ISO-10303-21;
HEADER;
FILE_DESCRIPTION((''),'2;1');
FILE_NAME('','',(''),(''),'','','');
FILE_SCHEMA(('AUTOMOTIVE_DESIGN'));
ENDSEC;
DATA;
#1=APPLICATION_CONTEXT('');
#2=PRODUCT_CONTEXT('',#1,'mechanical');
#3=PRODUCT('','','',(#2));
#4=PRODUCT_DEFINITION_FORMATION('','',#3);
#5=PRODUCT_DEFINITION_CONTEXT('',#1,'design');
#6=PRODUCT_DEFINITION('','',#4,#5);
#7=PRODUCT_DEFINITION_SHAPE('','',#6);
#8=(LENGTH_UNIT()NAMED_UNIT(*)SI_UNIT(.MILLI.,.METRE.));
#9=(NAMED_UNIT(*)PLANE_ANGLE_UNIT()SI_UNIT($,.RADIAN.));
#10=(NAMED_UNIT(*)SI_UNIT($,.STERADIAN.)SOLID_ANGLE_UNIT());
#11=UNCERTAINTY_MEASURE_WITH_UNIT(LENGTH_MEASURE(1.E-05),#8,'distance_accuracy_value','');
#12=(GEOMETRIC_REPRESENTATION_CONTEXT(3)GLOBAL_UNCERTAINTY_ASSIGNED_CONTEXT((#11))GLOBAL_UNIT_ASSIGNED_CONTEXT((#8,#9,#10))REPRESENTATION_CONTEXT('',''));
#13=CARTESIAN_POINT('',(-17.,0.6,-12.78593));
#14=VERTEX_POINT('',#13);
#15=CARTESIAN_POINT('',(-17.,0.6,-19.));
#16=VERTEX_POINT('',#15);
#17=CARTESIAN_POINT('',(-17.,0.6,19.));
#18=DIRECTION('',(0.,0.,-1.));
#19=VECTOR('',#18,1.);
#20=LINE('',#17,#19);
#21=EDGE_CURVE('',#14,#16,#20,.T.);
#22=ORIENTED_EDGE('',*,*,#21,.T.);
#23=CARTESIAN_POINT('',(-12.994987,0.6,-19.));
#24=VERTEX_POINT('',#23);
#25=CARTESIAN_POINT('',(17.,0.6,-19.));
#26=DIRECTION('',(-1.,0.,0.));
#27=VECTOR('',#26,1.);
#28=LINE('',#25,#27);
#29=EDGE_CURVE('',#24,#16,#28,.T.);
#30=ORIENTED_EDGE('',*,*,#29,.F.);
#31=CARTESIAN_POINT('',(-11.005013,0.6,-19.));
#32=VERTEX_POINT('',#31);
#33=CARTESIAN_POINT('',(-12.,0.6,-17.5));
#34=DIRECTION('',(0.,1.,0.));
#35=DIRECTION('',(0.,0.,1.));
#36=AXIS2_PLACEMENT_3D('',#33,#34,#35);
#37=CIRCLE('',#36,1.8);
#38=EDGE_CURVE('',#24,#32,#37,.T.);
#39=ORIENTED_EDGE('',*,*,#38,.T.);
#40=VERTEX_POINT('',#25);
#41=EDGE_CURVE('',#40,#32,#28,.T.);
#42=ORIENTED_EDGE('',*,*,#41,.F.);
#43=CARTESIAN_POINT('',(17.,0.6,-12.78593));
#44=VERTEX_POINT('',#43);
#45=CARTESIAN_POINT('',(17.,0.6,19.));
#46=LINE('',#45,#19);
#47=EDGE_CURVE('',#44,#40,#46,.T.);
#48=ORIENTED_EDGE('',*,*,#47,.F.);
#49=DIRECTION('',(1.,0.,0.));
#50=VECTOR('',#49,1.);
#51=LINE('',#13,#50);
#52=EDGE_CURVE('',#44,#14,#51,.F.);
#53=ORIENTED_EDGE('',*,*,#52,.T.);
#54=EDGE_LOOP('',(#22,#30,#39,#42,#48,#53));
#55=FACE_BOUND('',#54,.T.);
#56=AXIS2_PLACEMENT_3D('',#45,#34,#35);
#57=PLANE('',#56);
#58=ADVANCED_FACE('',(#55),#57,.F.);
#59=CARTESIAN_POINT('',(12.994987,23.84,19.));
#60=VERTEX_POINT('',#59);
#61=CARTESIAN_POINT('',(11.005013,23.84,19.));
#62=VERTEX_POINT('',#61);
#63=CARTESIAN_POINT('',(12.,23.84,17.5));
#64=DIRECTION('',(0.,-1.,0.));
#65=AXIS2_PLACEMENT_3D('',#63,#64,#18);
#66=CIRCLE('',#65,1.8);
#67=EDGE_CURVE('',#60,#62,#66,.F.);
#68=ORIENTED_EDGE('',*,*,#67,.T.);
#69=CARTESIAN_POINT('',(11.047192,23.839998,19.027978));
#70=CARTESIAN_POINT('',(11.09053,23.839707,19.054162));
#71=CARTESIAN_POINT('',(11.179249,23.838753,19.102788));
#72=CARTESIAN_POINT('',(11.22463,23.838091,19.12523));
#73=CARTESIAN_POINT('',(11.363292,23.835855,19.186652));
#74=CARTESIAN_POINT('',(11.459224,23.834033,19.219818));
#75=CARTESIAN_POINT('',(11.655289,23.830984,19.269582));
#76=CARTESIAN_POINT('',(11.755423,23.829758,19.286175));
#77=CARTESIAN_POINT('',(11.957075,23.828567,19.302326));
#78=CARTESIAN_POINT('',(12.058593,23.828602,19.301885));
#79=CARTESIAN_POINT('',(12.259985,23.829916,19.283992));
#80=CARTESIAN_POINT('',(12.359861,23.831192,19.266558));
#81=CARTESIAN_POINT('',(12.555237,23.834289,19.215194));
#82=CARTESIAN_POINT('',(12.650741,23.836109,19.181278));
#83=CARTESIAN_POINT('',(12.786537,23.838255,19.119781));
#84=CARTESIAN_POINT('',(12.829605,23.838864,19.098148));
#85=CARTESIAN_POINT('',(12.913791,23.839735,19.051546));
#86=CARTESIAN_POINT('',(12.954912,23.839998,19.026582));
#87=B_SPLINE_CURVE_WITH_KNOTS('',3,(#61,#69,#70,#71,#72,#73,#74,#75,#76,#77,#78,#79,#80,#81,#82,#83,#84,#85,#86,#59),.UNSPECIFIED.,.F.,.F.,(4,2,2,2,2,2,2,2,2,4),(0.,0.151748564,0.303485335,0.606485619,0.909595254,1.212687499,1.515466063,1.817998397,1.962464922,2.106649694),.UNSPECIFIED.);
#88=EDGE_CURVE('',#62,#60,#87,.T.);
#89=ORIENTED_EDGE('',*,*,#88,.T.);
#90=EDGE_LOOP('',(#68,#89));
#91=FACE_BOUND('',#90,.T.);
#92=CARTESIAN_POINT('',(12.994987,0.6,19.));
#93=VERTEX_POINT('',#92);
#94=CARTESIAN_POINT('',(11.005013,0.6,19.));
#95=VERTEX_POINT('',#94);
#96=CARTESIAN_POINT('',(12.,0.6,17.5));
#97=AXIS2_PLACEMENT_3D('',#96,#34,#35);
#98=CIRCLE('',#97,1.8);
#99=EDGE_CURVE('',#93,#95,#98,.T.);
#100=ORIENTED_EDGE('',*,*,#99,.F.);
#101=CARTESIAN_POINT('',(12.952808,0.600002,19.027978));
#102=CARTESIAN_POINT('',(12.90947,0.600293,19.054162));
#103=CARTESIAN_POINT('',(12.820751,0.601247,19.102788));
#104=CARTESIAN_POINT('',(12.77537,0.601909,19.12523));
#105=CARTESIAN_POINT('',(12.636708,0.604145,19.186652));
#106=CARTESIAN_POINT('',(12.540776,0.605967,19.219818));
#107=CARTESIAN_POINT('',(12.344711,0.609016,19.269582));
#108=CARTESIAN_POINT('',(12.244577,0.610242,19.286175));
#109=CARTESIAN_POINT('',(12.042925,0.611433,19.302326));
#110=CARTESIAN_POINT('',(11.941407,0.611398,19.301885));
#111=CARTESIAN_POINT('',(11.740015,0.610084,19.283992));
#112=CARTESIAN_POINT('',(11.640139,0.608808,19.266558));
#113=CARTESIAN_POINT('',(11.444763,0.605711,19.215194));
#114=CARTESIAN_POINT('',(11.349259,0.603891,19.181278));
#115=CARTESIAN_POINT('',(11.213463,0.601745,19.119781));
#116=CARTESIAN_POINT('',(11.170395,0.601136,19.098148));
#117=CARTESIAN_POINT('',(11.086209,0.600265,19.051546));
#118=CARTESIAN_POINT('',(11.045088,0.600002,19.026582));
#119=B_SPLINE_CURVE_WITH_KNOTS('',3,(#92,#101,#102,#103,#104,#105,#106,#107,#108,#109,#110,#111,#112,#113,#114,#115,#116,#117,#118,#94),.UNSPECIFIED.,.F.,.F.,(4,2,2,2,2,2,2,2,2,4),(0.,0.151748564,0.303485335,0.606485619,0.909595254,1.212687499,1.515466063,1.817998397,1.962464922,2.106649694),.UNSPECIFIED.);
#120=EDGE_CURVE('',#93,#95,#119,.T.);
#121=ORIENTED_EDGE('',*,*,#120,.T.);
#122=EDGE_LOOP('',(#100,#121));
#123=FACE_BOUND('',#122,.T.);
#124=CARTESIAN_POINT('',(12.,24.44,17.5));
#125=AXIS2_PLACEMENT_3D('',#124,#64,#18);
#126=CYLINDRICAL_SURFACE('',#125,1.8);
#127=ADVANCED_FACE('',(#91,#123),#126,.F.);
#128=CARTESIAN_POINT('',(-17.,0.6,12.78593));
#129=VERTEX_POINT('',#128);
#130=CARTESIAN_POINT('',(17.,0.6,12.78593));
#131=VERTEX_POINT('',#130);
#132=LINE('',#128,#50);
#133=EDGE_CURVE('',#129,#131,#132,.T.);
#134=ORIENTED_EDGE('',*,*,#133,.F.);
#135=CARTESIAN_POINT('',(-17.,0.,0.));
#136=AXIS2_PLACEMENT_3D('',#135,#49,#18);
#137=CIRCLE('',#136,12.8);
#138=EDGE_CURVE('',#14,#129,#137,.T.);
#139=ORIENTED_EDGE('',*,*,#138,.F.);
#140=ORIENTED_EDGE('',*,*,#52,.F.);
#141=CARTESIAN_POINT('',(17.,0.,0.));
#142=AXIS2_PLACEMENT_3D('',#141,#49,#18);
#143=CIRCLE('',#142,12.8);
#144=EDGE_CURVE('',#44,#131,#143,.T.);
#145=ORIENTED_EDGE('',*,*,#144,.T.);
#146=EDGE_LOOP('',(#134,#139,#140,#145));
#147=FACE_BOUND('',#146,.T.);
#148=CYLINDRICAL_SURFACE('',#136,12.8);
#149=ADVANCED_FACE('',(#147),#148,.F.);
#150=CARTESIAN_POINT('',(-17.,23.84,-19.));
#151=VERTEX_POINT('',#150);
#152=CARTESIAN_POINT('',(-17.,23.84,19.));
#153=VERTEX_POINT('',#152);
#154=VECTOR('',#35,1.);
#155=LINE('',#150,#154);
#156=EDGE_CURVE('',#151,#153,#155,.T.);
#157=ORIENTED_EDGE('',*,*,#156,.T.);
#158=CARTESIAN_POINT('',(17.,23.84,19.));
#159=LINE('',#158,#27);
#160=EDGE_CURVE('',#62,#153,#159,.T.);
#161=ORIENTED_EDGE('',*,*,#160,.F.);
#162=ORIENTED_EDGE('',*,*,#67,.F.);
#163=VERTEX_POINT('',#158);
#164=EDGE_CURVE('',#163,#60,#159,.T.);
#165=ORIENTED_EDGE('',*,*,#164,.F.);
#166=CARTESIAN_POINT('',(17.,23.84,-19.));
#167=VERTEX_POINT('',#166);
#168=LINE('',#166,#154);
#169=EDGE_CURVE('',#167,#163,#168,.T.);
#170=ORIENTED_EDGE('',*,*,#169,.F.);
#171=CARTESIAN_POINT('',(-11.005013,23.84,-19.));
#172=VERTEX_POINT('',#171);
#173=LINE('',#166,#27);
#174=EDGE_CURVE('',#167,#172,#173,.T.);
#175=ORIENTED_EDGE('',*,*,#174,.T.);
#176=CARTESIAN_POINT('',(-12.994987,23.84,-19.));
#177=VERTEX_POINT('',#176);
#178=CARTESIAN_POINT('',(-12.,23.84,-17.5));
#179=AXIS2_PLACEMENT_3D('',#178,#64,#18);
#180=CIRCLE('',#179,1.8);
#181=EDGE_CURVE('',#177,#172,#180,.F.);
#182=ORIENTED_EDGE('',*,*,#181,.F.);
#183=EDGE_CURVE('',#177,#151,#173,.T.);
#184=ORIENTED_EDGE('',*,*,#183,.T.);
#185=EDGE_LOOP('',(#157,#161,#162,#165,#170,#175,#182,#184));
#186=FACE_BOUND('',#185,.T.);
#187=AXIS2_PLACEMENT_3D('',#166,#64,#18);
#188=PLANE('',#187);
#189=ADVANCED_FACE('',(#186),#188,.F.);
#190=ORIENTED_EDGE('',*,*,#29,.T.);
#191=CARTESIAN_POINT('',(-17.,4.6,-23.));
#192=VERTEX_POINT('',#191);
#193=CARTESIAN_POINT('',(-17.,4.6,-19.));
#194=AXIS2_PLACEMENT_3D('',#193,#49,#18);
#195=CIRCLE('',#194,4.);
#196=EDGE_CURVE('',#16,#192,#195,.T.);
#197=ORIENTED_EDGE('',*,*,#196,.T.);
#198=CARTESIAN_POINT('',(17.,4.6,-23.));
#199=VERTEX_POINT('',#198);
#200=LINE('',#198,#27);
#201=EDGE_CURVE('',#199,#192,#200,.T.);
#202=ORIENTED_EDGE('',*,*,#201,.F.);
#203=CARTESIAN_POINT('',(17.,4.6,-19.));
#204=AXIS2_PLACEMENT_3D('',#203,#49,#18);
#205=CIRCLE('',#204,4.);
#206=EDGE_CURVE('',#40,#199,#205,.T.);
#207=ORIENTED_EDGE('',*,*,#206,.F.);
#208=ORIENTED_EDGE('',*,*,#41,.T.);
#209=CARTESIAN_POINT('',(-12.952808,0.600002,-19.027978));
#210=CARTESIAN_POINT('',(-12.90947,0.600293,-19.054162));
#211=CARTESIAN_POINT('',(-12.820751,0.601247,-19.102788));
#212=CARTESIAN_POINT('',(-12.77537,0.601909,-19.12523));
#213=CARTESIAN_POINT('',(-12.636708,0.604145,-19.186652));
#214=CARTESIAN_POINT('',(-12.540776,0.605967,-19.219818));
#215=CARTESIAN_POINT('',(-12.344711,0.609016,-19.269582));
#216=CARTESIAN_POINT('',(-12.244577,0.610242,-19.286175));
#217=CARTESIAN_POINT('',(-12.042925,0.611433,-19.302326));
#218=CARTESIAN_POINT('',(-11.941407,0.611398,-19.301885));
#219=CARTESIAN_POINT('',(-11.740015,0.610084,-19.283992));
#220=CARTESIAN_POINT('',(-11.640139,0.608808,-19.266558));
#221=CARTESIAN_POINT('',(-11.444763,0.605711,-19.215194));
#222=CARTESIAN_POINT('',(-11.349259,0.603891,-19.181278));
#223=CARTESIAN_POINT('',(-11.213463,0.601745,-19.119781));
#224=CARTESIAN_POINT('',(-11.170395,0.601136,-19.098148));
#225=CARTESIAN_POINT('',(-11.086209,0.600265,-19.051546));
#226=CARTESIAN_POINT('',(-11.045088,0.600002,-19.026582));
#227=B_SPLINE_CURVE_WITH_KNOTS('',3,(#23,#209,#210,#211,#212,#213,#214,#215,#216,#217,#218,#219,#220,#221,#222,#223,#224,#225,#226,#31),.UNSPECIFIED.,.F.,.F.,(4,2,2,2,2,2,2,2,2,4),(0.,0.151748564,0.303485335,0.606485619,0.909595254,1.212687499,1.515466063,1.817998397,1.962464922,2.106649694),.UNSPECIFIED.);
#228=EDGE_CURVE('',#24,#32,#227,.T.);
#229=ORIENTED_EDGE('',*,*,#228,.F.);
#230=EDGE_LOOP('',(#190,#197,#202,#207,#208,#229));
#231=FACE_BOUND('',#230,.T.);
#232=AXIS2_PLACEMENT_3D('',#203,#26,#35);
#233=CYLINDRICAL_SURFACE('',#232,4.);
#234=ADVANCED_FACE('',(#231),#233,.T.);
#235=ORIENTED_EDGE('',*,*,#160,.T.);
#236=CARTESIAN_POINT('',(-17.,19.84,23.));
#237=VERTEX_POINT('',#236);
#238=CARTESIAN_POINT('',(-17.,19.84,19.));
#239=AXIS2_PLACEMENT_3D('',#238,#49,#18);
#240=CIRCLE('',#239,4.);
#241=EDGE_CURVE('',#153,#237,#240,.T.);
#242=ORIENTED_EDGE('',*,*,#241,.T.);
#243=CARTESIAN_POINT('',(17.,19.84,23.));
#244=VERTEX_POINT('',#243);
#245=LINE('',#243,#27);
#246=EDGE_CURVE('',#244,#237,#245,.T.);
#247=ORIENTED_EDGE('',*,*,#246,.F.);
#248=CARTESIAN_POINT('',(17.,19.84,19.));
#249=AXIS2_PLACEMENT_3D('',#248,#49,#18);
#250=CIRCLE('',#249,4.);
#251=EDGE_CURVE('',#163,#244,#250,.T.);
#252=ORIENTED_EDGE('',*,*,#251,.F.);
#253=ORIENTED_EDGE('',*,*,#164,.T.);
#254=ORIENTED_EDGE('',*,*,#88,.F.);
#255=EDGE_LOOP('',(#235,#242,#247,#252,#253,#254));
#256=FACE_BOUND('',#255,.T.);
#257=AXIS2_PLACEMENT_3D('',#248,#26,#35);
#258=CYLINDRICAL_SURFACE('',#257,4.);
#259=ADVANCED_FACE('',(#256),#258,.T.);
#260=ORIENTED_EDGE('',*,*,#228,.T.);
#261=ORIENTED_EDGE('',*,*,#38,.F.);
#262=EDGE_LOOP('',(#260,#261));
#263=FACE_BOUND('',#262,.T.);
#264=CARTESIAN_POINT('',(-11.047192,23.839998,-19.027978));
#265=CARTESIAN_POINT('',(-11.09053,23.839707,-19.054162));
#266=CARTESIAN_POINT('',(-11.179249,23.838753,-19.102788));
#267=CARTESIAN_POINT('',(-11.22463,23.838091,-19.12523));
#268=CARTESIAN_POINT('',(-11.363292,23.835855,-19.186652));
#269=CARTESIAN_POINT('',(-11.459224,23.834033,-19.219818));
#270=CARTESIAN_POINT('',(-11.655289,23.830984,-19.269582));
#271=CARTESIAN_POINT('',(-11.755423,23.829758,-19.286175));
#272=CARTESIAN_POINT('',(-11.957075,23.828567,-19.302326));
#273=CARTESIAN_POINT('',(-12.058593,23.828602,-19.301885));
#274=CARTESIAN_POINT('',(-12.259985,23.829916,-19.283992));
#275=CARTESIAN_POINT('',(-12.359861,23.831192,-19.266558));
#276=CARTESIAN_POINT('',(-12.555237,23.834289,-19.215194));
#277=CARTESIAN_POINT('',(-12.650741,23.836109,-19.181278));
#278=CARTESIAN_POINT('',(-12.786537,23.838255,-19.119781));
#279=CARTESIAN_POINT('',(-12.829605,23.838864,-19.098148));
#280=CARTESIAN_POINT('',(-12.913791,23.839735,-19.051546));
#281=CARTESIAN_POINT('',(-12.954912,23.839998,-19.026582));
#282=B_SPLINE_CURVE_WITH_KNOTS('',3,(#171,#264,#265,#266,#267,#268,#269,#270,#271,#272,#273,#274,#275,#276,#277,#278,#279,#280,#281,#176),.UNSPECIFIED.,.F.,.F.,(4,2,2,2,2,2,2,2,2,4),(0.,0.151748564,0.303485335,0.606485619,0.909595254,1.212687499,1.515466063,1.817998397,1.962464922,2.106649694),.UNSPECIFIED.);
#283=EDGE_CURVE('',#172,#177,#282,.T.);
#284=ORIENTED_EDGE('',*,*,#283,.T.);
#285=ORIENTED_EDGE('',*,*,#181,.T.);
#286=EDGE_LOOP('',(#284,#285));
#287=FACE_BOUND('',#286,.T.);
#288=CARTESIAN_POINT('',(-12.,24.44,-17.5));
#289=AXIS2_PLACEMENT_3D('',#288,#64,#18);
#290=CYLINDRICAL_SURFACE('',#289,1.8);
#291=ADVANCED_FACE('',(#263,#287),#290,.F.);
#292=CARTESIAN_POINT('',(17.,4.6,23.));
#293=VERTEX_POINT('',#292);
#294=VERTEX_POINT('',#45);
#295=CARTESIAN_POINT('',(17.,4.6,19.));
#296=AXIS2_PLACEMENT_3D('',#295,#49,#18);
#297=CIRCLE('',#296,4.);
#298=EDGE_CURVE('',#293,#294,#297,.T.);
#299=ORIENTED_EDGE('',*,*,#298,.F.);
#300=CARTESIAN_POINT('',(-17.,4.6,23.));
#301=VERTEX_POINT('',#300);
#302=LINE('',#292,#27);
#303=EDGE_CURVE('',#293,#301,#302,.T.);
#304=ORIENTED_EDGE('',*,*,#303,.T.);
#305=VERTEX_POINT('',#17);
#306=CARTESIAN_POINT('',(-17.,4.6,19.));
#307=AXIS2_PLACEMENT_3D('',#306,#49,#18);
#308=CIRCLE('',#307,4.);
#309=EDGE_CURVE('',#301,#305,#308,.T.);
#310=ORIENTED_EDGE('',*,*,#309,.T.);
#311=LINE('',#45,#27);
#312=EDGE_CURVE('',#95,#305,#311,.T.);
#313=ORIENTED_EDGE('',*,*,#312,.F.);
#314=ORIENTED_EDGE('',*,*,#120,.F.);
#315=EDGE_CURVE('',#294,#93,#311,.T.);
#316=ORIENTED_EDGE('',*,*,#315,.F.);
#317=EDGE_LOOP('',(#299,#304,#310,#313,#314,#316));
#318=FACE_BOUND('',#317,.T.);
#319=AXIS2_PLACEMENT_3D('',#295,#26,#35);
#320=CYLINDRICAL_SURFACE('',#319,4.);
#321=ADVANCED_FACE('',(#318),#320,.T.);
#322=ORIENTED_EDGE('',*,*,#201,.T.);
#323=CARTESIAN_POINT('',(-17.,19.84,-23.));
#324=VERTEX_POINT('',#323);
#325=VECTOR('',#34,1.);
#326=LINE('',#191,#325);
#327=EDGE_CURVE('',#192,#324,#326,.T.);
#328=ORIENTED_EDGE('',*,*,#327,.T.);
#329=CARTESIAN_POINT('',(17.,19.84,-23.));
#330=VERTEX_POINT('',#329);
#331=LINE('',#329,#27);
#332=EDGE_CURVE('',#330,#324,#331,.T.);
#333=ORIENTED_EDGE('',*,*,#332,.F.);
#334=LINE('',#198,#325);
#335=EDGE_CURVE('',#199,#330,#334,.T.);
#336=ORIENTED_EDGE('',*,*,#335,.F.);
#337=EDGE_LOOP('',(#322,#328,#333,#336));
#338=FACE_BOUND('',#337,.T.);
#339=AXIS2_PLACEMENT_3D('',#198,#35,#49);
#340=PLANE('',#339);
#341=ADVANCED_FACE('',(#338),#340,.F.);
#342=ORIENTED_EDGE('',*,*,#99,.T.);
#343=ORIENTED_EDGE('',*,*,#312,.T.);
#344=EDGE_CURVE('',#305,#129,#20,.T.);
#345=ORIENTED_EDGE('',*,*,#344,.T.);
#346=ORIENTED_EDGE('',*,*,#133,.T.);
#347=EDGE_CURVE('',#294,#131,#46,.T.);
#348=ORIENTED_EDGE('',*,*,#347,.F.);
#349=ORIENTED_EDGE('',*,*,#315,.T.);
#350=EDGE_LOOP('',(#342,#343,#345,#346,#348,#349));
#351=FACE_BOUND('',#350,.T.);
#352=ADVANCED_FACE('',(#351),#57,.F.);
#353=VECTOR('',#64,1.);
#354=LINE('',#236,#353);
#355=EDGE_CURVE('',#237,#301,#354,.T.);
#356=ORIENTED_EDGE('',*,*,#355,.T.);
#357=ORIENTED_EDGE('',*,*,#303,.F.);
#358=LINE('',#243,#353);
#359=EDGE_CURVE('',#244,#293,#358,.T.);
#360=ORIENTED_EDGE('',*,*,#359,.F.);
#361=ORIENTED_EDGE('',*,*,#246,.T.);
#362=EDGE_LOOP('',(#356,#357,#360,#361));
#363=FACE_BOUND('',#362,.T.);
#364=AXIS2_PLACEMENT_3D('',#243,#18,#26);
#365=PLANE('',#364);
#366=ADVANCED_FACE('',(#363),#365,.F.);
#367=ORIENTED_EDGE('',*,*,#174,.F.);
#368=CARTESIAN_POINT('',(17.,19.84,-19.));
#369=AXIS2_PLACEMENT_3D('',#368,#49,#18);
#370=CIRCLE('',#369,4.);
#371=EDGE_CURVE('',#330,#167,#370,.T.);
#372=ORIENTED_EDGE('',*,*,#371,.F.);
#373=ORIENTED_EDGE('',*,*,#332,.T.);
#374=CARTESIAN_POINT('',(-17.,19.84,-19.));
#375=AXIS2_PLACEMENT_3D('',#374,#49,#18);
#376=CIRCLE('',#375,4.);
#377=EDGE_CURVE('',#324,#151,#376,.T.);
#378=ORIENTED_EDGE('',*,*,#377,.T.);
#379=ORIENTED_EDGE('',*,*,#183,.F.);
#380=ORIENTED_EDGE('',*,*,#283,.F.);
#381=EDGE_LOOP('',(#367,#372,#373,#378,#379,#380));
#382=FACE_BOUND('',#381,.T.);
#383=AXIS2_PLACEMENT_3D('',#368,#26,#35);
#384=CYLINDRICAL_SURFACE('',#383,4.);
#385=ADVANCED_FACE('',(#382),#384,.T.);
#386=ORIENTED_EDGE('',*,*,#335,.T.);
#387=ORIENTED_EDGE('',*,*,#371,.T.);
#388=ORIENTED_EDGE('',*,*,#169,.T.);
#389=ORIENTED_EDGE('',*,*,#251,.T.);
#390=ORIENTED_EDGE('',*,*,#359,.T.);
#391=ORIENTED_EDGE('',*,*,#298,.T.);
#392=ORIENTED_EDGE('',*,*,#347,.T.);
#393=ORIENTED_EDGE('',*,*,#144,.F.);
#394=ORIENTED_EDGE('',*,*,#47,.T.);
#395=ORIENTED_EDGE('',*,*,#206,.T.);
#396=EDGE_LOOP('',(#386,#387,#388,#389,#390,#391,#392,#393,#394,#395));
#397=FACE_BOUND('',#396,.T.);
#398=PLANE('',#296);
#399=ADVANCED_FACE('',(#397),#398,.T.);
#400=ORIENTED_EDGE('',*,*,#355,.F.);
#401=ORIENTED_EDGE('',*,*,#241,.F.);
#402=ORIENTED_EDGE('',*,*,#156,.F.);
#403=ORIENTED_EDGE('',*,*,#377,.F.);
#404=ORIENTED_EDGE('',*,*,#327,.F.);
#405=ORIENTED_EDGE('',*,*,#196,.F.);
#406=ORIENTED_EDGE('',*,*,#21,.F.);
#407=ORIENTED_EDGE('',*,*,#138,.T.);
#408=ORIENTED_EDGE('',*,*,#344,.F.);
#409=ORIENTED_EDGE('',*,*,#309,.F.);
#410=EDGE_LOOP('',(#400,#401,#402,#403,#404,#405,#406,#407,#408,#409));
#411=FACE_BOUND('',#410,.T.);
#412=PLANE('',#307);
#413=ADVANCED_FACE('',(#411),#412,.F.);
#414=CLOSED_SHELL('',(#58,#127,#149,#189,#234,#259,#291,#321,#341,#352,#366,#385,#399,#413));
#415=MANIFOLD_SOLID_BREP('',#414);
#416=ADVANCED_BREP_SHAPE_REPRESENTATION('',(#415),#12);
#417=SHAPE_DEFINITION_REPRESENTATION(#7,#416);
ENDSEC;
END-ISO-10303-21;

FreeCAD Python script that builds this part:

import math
import FreeCAD as App
import Part
import Sketcher

doc = App.newDocument("Part")
body = doc.addObject("PartDesign::Body", "Body")

# Sketch on YZ plane
sketch1 = body.newObject("Sketcher::SketchObject", "Sketch")
sketch1.AttachmentSupport = (doc.getObject("YZ_Plane"), [""])
sketch1.MapMode = "FlatFace"
sketch1.addGeometry([
    Part.LineSegment(App.Vector(0.6, 19, 0), App.Vector(0.6, -19, 0)),  # 0
    Part.ArcOfCircle(Part.Circle(App.Vector(4.6, -19, 0), App.Vector(0, 0, 1), 4), math.radians(180), math.radians(270)),  # 1
    Part.LineSegment(App.Vector(4.6, -23, 0), App.Vector(19.8, -23, 0)),  # 2
    Part.ArcOfCircle(Part.Circle(App.Vector(19.8, -19, 0), App.Vector(0, 0, 1), 4), math.radians(-90), math.radians(0)),  # 3
    Part.LineSegment(App.Vector(23.8, -19, 0), App.Vector(23.8, 19, 0)),  # 4
    Part.ArcOfCircle(Part.Circle(App.Vector(19.8, 19, 0), App.Vector(0, 0, 1), 4), math.radians(0), math.radians(90)),  # 5
    Part.LineSegment(App.Vector(19.8, 23, 0), App.Vector(4.6, 23, 0)),  # 6
    Part.ArcOfCircle(Part.Circle(App.Vector(4.6, 19, 0), App.Vector(0, 0, 1), 4), math.radians(90), math.radians(180)),  # 7
], False)
sketch1.addConstraint([
    Sketcher.Constraint("Tangent", 0, 2, 1, 1),
    Sketcher.Constraint("Tangent", 1, 2, 2, 1),
    Sketcher.Constraint("Tangent", 2, 2, 3, 1),
    Sketcher.Constraint("Tangent", 3, 2, 4, 1),
    Sketcher.Constraint("Tangent", 4, 2, 5, 1),
    Sketcher.Constraint("Tangent", 5, 2, 6, 1),
    Sketcher.Constraint("Tangent", 6, 2, 7, 1),
    Sketcher.Constraint("Tangent", 7, 2, 0, 1),
    Sketcher.Constraint("Vertical", 0),
    Sketcher.Constraint("Horizontal", 2),
    Sketcher.Constraint("Vertical", 4),
    Sketcher.Constraint("Horizontal", 6),
    Sketcher.Constraint("Equal", 1, 3),
    Sketcher.Constraint("Equal", 3, 5),
    Sketcher.Constraint("Equal", 5, 7),
    Sketcher.Constraint("Radius", 1, 4.0),
    Sketcher.Constraint("DistanceY", 0, 2, 0, 1, 38.0),
    Sketcher.Constraint("DistanceY", 1, 3, -1, 1, 19.0),
    Sketcher.Constraint("DistanceX", 2, 1, 2, 2, 15.24),
    Sketcher.Constraint("DistanceX", -1, 1, 1, 3, 4.6),
])
pad1 = body.newObject("PartDesign::Pad", "Pad")
pad1.Profile = sketch1
pad1.Length = 34
pad1.Midplane = True

# Sketch on YZ plane
sketch2 = body.newObject("Sketcher::SketchObject", "Sketch001")
sketch2.AttachmentSupport = (doc.getObject("YZ_Plane"), [""])
sketch2.MapMode = "FlatFace"
sketch2.addGeometry(Part.Circle(App.Vector(0, 0, 0), App.Vector(0, 0, 1), 13), False)
sketch2.addConstraint([
    Sketcher.Constraint("Coincident", 0, 3, -1, 1),
    Sketcher.Constraint("Diameter", 0, 25.6),
])
pocket1 = body.newObject("PartDesign::Pocket", "Pocket")
pocket1.Profile = sketch2
pocket1.Type = "ThroughAll"
pocket1.Midplane = True

# Sketch on XZ plane
sketch3 = body.newObject("Sketcher::SketchObject", "Sketch002")
sketch3.AttachmentSupport = (doc.getObject("XZ_Plane"), [""])
sketch3.MapMode = "FlatFace"
sketch3.AttachmentOffset = App.Placement(App.Vector(0, 0, -0.6), App.Rotation())
sketch3.addGeometry([
    Part.Circle(App.Vector(12, 17.5, 0), App.Vector(0, 0, 1), 1.8),
    Part.Circle(App.Vector(-12, -17.5, 0), App.Vector(0, 0, 1), 1.8),
], False)
sketch3.addConstraint([
    Sketcher.Constraint("Equal", 0, 1),
    Sketcher.Constraint("Symmetric", 0, 3, 1, 3, -1, 1),
    Sketcher.Constraint("Diameter", 0, 3.6),
    Sketcher.Constraint("DistanceX", -1, 1, 0, 3, 12.0),
    Sketcher.Constraint("DistanceY", 1, 3, 0, 3, 35.0),
])
pocket2 = body.newObject("PartDesign::Pocket", "Pocket001")
pocket2.Profile = sketch3
pocket2.Length = 23.84

doc.recompute()
